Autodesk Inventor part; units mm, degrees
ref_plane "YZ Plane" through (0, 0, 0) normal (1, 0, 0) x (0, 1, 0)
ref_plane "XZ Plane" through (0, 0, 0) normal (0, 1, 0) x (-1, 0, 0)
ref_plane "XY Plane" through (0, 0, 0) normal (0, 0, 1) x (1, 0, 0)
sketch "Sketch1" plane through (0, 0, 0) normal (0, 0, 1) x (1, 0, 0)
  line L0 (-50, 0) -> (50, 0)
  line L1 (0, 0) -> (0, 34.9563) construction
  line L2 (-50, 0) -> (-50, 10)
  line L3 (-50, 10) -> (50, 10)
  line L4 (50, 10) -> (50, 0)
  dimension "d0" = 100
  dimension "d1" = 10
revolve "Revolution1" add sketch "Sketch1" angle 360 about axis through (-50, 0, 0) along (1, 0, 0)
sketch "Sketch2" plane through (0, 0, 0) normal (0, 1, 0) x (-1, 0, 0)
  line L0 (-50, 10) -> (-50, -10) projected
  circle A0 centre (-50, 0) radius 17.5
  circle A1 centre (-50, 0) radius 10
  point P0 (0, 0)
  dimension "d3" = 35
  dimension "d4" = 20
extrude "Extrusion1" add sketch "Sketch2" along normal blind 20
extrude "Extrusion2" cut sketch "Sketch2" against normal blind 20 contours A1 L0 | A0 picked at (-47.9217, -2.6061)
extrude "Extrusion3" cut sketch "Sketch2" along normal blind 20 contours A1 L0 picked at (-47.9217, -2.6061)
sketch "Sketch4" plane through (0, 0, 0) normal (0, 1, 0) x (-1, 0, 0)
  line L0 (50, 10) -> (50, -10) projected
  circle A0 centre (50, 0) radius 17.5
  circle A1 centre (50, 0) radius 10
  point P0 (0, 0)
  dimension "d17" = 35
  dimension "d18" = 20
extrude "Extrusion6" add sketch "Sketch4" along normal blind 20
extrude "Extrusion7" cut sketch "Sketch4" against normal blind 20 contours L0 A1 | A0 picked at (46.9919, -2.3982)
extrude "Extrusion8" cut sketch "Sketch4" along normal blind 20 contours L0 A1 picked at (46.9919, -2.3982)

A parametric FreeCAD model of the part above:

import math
import FreeCAD as App
import Part
import Sketcher

V = App.Vector
Q = App.Units.Quantity


def add_polygon(sketch, points):
    """Adds a closed chain of lines whose ends are joined by coincident constraints."""
    first, n = sketch.GeometryCount, len(points)
    for a, b in zip(points, points[1:] + points[:1]):
        sketch.addGeometry(Part.LineSegment(App.Vector(*a, 0), App.Vector(*b, 0)), False)
    for i in range(n):
        sketch.addConstraint(Sketcher.Constraint("Coincident", first + i, 2, first + (i + 1) % n, 1))

doc = App.newDocument("Part")
body = doc.addObject("PartDesign::Body", "Body")

# Sketch on XY plane
sketch1 = doc.addObject("Sketcher::SketchObject", "Sketch")
body.addObject(sketch1)
sketch1.AttachmentSupport = (doc.XY_Plane, [""])
sketch1.MapMode = "FlatFace"
add_polygon(sketch1, [(-50, 10), (-50, 0), (50, 0), (50, 10)])  # lines 0-3
sketch1.addConstraint([
    Sketcher.Constraint("Vertical", 0),
    Sketcher.Constraint("Horizontal", 1),
    Sketcher.Constraint("Vertical", 2),
    Sketcher.Constraint("Horizontal", 3),
    Sketcher.Constraint("Symmetric", 0, 2, 1, 2, -1, 1),
    Sketcher.Constraint("DistanceX", 1, 1, 1, 2, Q("100 mm")),
    Sketcher.Constraint("DistanceY", 0, 2, 0, 1, Q("10 mm")),
])
revolution = doc.addObject("PartDesign::Revolution", "Revolution")
body.addObject(revolution)
revolution.Profile = sketch1
revolution.ReferenceAxis = (sketch1, ["H_Axis"])
revolution.Angle = 360

# Sketch on XZ plane
sketch2 = doc.addObject("Sketcher::SketchObject", "Sketch001")
body.addObject(sketch2)
sketch2.AttachmentSupport = (doc.XZ_Plane, [""])
sketch2.MapMode = "FlatFace"
sketch2.addGeometry([
    Part.Circle(V(50, 0, 0), V(0, 0, 1), 17.5),
    Part.Circle(V(50, 0, 0), V(0, 0, 1), 10),
], False)
sketch2.addConstraint([
    Sketcher.Constraint("Coincident", 1, 3, 0, 3),
    Sketcher.Constraint("PointOnObject", 0, 3, -1),
    Sketcher.Constraint("Diameter", 0, Q("35 mm")),
    Sketcher.Constraint("Diameter", 1, Q("20 mm")),
    Sketcher.Constraint("DistanceX", -1, 1, 0, 3, Q("50 mm")),
])
pad1 = doc.addObject("PartDesign::Pad", "Pad")
body.addObject(pad1)
pad1.Profile = sketch2
pad1.Length = 20
pad1.Reversed = True

# Sketch on XZ plane
sketch3 = doc.addObject("Sketcher::SketchObject", "Sketch002")
body.addObject(sketch3)
sketch3.AttachmentSupport = (doc.XZ_Plane, [""])
sketch3.MapMode = "FlatFace"
sketch3.addGeometry([
    Part.Circle(V(50, 0, 0), V(0, 0, 1), 17.5),
    Part.LineSegment(V(50, 10, 0), V(50, -10, 0)),
    Part.ArcOfCircle(Part.Circle(V(50, 0, 0), V(0, 0, 1), 10), math.radians(-90), math.radians(90)),
], False)
sketch3.addConstraint([
    Sketcher.Constraint("Coincident", 1, 1, 2, 2),
    Sketcher.Constraint("Coincident", 2, 1, 1, 2),
    Sketcher.Constraint("Vertical", 1),
    Sketcher.Constraint("Coincident", 2, 3, 0, 3),
    Sketcher.Constraint("PointOnObject", 0, 3, -1),
    Sketcher.Constraint("Vertical", 2, 3, 1, 1),
    Sketcher.Constraint("Diameter", 0, Q("35 mm")),
    Sketcher.Constraint("Radius", 2, Q("10 mm")),
    Sketcher.Constraint("DistanceX", -1, 1, 0, 3, Q("50 mm")),
])
pocket1 = doc.addObject("PartDesign::Pocket", "Pocket")
body.addObject(pocket1)
pocket1.Profile = sketch3
pocket1.Length = 20
pocket1.Reversed = True

# Sketch on XZ plane
sketch4 = doc.addObject("Sketcher::SketchObject", "Sketch003")
body.addObject(sketch4)
sketch4.AttachmentSupport = (doc.XZ_Plane, [""])
sketch4.MapMode = "FlatFace"
sketch4.addGeometry([
    Part.ArcOfCircle(Part.Circle(V(50, 0, 0), V(0, 0, 1), 10), math.radians(90), math.radians(270)),
    Part.LineSegment(V(50, 10, 0), V(50, -10, 0)),
], False)
sketch4.addConstraint([
    Sketcher.Constraint("Coincident", 0, 1, 1, 1),
    Sketcher.Constraint("Coincident", 1, 2, 0, 2),
    Sketcher.Constraint("Vertical", 1),
    Sketcher.Constraint("PointOnObject", 0, 3, -1),
    Sketcher.Constraint("Radius", 0, Q("10 mm")),
    Sketcher.Constraint("DistanceX", -1, 1, 0, 3, Q("50 mm")),
    Sketcher.Constraint("DistanceX", -1, 1, 0, 1, Q("50 mm")),
])
pocket2 = doc.addObject("PartDesign::Pocket", "Pocket001")
body.addObject(pocket2)
pocket2.Profile = sketch4
pocket2.Length = 20

# Sketch on XZ plane
sketch5 = doc.addObject("Sketcher::SketchObject", "Sketch004")
body.addObject(sketch5)
sketch5.AttachmentSupport = (doc.XZ_Plane, [""])
sketch5.MapMode = "FlatFace"
sketch5.addGeometry([
    Part.Circle(V(-50, 0, 0), V(0, 0, 1), 17.5),
    Part.Circle(V(-50, 0, 0), V(0, 0, 1), 10),
], False)
sketch5.addConstraint([
    Sketcher.Constraint("Coincident", 1, 3, 0, 3),
    Sketcher.Constraint("PointOnObject", 0, 3, -1),
    Sketcher.Constraint("Diameter", 0, Q("35 mm")),
    Sketcher.Constraint("Diameter", 1, Q("20 mm")),
    Sketcher.Constraint("DistanceX", 0, 3, -1, 1, Q("50 mm")),
])
pad2 = doc.addObject("PartDesign::Pad", "Pad001")
body.addObject(pad2)
pad2.Profile = sketch5
pad2.Length = 20
pad2.Reversed = True

# Sketch on XZ plane
sketch6 = doc.addObject("Sketcher::SketchObject", "Sketch005")
body.addObject(sketch6)
sketch6.AttachmentSupport = (doc.XZ_Plane, [""])
sketch6.MapMode = "FlatFace"
sketch6.addGeometry([
    Part.Circle(V(-50, 0, 0), V(0, 0, 1), 17.5),
    Part.LineSegment(V(-50, -10, 0), V(-50, 10, 0)),
    Part.ArcOfCircle(Part.Circle(V(-50, 0, 0), V(0, 0, 1), 10), math.radians(90), math.radians(270)),
], False)
sketch6.addConstraint([
    Sketcher.Constraint("Coincident", 1, 1, 2, 2),
    Sketcher.Constraint("Coincident", 2, 1, 1, 2),
    Sketcher.Constraint("Vertical", 1),
    Sketcher.Constraint("Coincident", 2, 3, 0, 3),
    Sketcher.Constraint("PointOnObject", 0, 3, -1),
    Sketcher.Constraint("Vertical", 2, 3, 1, 1),
    Sketcher.Constraint("Diameter", 0, Q("35 mm")),
    Sketcher.Constraint("Radius", 2, Q("10 mm")),
    Sketcher.Constraint("DistanceX", 0, 3, -1, 1, Q("50 mm")),
])
pocket3 = doc.addObject("PartDesign::Pocket", "Pocket002")
body.addObject(pocket3)
pocket3.Profile = sketch6
pocket3.Length = 20
pocket3.Reversed = True

# Sketch on XZ plane
sketch7 = doc.addObject("Sketcher::SketchObject", "Sketch006")
body.addObject(sketch7)
sketch7.AttachmentSupport = (doc.XZ_Plane, [""])
sketch7.MapMode = "FlatFace"
sketch7.addGeometry([
    Part.LineSegment(V(-50, -10, 0), V(-50, 10, 0)),
    Part.ArcOfCircle(Part.Circle(V(-50, 0, 0), V(0, 0, 1), 10), math.radians(-90), math.radians(90)),
], False)
sketch7.addConstraint([
    Sketcher.Constraint("Coincident", 0, 1, 1, 1),
    Sketcher.Constraint("Coincident", 1, 2, 0, 2),
    Sketcher.Constraint("Vertical", 0),
    Sketcher.Constraint("PointOnObject", 1, 3, -1),
    Sketcher.Constraint("Vertical", 1, 3, 0, 1),
    Sketcher.Constraint("Radius", 1, Q("10 mm")),
    Sketcher.Constraint("DistanceX", 1, 3, -1, 1, Q("50 mm")),
])
pocket4 = doc.addObject("PartDesign::Pocket", "Pocket003")
body.addObject(pocket4)
pocket4.Profile = sketch7
pocket4.Length = 20

doc.recompute()
